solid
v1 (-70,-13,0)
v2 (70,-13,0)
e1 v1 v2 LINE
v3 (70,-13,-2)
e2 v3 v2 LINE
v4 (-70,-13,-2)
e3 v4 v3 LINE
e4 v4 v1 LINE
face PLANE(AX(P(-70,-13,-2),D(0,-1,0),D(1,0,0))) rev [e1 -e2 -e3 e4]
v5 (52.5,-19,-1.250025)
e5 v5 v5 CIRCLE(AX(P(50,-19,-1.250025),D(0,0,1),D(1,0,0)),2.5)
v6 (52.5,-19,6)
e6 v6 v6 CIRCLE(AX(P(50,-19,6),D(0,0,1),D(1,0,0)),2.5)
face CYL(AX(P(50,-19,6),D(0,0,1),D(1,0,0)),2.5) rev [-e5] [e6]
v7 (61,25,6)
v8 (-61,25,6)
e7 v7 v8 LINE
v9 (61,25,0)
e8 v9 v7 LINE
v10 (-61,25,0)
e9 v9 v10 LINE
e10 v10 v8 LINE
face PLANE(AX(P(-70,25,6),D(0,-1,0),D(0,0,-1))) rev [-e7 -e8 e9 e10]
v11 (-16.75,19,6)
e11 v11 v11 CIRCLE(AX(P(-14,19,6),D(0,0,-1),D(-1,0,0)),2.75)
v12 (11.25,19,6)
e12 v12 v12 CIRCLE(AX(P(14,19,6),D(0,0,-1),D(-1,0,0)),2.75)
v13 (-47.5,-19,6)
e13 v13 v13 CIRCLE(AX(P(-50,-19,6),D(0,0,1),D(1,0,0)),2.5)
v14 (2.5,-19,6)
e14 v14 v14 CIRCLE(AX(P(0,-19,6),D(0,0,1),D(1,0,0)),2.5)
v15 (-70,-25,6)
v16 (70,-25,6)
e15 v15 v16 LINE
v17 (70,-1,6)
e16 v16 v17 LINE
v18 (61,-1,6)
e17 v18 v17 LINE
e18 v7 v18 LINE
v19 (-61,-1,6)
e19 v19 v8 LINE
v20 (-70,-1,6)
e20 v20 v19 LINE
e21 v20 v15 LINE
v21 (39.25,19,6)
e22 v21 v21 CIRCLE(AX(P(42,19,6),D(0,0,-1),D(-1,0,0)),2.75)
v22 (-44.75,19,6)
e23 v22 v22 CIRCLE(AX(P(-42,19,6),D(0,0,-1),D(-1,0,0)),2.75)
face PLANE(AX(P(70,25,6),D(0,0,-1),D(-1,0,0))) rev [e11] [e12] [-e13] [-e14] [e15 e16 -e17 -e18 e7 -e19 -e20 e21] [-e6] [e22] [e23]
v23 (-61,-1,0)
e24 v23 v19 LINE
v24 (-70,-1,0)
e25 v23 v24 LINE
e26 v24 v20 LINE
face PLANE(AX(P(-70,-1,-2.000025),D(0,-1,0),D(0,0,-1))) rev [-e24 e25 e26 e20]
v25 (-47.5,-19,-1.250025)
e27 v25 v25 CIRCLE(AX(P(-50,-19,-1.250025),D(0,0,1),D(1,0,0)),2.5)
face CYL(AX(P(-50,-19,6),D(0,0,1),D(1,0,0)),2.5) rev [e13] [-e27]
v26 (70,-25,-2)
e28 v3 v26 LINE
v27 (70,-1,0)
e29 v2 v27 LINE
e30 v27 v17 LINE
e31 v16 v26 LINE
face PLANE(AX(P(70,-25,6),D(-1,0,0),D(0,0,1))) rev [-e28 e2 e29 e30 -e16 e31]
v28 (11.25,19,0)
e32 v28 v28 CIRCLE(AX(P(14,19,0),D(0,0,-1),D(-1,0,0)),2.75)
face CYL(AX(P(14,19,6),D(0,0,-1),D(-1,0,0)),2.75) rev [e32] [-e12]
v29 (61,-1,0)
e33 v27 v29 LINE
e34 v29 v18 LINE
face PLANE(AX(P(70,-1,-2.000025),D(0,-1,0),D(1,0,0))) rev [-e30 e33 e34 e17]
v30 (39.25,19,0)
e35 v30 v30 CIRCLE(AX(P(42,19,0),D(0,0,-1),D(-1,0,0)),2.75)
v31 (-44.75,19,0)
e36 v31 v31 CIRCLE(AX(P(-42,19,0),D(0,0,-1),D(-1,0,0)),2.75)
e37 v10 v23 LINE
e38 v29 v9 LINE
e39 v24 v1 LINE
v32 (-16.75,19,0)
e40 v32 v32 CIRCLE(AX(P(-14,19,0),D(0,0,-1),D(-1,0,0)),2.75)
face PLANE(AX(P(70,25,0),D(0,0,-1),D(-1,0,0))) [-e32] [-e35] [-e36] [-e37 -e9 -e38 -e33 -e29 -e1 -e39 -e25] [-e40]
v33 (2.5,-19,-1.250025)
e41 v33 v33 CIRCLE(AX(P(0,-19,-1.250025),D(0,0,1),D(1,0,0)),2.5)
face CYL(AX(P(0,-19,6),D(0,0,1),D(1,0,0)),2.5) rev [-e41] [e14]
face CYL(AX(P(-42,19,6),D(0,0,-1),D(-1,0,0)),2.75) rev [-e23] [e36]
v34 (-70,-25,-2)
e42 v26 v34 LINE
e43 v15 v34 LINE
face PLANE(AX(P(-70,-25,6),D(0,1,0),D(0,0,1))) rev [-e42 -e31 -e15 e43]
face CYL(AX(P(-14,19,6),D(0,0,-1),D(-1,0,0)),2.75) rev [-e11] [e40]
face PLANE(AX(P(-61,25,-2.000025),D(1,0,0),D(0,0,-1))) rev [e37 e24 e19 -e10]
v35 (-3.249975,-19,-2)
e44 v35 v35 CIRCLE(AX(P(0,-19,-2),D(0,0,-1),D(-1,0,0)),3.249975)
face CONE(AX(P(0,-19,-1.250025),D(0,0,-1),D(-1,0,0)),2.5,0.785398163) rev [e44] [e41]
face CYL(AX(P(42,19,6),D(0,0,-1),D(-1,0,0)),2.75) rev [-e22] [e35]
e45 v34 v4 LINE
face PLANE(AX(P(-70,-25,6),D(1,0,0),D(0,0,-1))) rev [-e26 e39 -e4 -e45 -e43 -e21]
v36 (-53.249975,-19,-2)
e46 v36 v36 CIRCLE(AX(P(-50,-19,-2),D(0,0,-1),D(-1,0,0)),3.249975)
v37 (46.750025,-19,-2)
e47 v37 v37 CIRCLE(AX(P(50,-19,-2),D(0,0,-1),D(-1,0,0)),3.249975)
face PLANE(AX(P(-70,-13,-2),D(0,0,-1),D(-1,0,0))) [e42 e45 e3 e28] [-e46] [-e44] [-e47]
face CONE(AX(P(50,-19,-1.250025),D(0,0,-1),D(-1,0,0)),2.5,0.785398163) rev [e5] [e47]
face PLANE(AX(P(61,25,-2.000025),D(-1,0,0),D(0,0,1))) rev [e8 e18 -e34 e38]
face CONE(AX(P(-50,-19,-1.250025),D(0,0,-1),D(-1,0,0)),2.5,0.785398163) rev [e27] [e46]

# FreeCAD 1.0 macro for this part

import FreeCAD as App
import Part
import Sketcher
from FreeCAD import Vector
Q = App.Units.Quantity

doc = App.newDocument("Part")
params = doc.addObject("Spreadsheet::Sheet", "Params")
for row, (alias, value) in enumerate([
    ("sketch1_width", "140 mm"),
    ("sketch1_height", "50 mm"),
    ("pad1_length", "6 mm"),
    ("sketch2_diameter", "5.5 mm"),
    ("sketch3_width", "140 mm"),
    ("sketch3_height", "12 mm"),
    ("pad2_length", "2 mm"),
    ("sketch4_width", "2.5 mm"),
    ("sketch4_width2", "3.25 mm"),
    ("groove_angle", "360 deg"),
    ("linearpattern_pitch", "50 mm"),
    ("linearpattern2_pitch", "50 mm"),
    ("sketch5_width", "9 mm"),
    ("sketch5_height", "26 mm"),
], start=1):
    params.set(f"A{row}", alias)
    params.set(f"B{row}", "=" + value)
    params.setAlias(f"B{row}", alias)

body = doc.addObject("PartDesign::Body", "Body")

# Sketch on XY plane
sketch1 = body.newObject("Sketcher::SketchObject", "Sketch")
sketch1.AttachmentSupport = (doc.getObject("XY_Plane"), [""])
sketch1.MapMode = "FlatFace"
sketch1.addGeometry(Part.LineSegment(Vector(-70, 25, 0), Vector(-70, -25, 0)), False)
sketch1.addGeometry(Part.LineSegment(Vector(-70, -25, 0), Vector(70, -25, 0)), False)
sketch1.addGeometry(Part.LineSegment(Vector(70, -25, 0), Vector(70, 25, 0)), False)
sketch1.addGeometry(Part.LineSegment(Vector(70, 25, 0), Vector(-70, 25, 0)), False)
sketch1.addConstraint(Sketcher.Constraint("Coincident", 0, 2, 1, 1))
sketch1.addConstraint(Sketcher.Constraint("Coincident", 1, 2, 2, 1))
sketch1.addConstraint(Sketcher.Constraint("Coincident", 2, 2, 3, 1))
sketch1.addConstraint(Sketcher.Constraint("Coincident", 3, 2, 0, 1))
sketch1.addConstraint(Sketcher.Constraint("Vertical", 0))
sketch1.addConstraint(Sketcher.Constraint("Horizontal", 1))
sketch1.addConstraint(Sketcher.Constraint("Vertical", 2))
sketch1.addConstraint(Sketcher.Constraint("Horizontal", 3))
sketch1.addConstraint(Sketcher.Constraint("Symmetric", 0, 2, 2, 2, -1, 1))
sketch1.addConstraint(Sketcher.Constraint("DistanceX", 1, 1, 1, 2, Q("140 mm")))
sketch1.addConstraint(Sketcher.Constraint("DistanceY", 0, 2, 0, 1, Q("50 mm")))
sketch1.setExpression("Constraints[9]", "Params.sketch1_width")
sketch1.setExpression("Constraints[10]", "Params.sketch1_height")
pad1 = body.newObject("PartDesign::Pad", "Pad")
pad1.Profile = sketch1
pad1.setExpression("Length", "Params.pad1_length")

# Sketch on XY plane
sketch2 = body.newObject("Sketcher::SketchObject", "Sketch001")
sketch2.AttachmentSupport = (doc.getObject("XY_Plane"), [""])
sketch2.MapMode = "FlatFace"
sketch2.addGeometry(Part.Circle(Vector(-42, 19, 0), Vector(0, 0, 1), 2.75), False)
sketch2.addGeometry(Part.Circle(Vector(-14, 19, 0), Vector(0, 0, 1), 2.75), False)
sketch2.addGeometry(Part.Circle(Vector(14, 19, 0), Vector(0, 0, 1), 2.75), False)
sketch2.addGeometry(Part.Circle(Vector(42, 19, 0), Vector(0, 0, 1), 2.75), False)
sketch2.addConstraint(Sketcher.Constraint("Equal", 0, 1))
sketch2.addConstraint(Sketcher.Constraint("Equal", 1, 2))
sketch2.addConstraint(Sketcher.Constraint("Equal", 2, 3))
sketch2.addConstraint(Sketcher.Constraint("Symmetric", 1, 3, 2, 3, -2))
sketch2.addConstraint(Sketcher.Constraint("Symmetric", 0, 3, 3, 3, -2))
sketch2.addConstraint(Sketcher.Constraint("Horizontal", 0, 3, 1, 3))
sketch2.addConstraint(Sketcher.Constraint("Diameter", 0, Q("5.5 mm")))
sketch2.addConstraint(Sketcher.Constraint("DistanceX", 0, 3, -1, 1, Q("42 mm")))
sketch2.addConstraint(Sketcher.Constraint("DistanceY", -1, 1, 0, 3, Q("19 mm")))
sketch2.addConstraint(Sketcher.Constraint("DistanceX", 1, 3, -1, 1, Q("14 mm")))
sketch2.setExpression("Constraints[6]", "Params.sketch2_diameter")
pocket1 = body.newObject("PartDesign::Pocket", "Pocket")
pocket1.Profile = sketch2
pocket1.Type = "ThroughAll"
pocket1.Reversed = True

# Sketch on XY plane
sketch3 = body.newObject("Sketcher::SketchObject", "Sketch002")
sketch3.AttachmentSupport = (doc.getObject("XY_Plane"), [""])
sketch3.MapMode = "FlatFace"
sketch3.addGeometry(Part.LineSegment(Vector(70, -13, 0), Vector(70, -25, 0)), False)
sketch3.addGeometry(Part.LineSegment(Vector(70, -25, 0), Vector(-70, -25, 0)), False)
sketch3.addGeometry(Part.LineSegment(Vector(-70, -25, 0), Vector(-70, -13, 0)), False)
sketch3.addGeometry(Part.LineSegment(Vector(-70, -13, 0), Vector(70, -13, 0)), False)
sketch3.addConstraint(Sketcher.Constraint("Coincident", 0, 2, 1, 1))
sketch3.addConstraint(Sketcher.Constraint("Coincident", 1, 2, 2, 1))
sketch3.addConstraint(Sketcher.Constraint("Coincident", 2, 2, 3, 1))
sketch3.addConstraint(Sketcher.Constraint("Coincident", 3, 2, 0, 1))
sketch3.addConstraint(Sketcher.Constraint("Vertical", 0))
sketch3.addConstraint(Sketcher.Constraint("Horizontal", 1))
sketch3.addConstraint(Sketcher.Constraint("Vertical", 2))
sketch3.addConstraint(Sketcher.Constraint("Horizontal", 3))
sketch3.addConstraint(Sketcher.Constraint("DistanceX", 1, 2, 1, 1, Q("140 mm")))
sketch3.addConstraint(Sketcher.Constraint("DistanceY", 0, 2, 0, 1, Q("12 mm")))
sketch3.addConstraint(Sketcher.Constraint("DistanceX", -1, 1, 0, 2, Q("70 mm")))
sketch3.addConstraint(Sketcher.Constraint("DistanceY", 0, 2, -1, 1, Q("25 mm")))
sketch3.setExpression("Constraints[8]", "Params.sketch3_width")
sketch3.setExpression("Constraints[9]", "Params.sketch3_height")
pad2 = body.newObject("PartDesign::Pad", "Pad001")
pad2.Profile = sketch3
pad2.setExpression("Length", "Params.pad2_length")
pad2.Reversed = True

# Sketch on YZ plane
sketch4 = body.newObject("Sketcher::SketchObject", "Sketch003")
sketch4.AttachmentSupport = (doc.getObject("YZ_Plane"), [""])
sketch4.MapMode = "FlatFace"
sketch4.addGeometry(Part.LineSegment(Vector(-19, -2.000025, 0), Vector(-19, 6, 0)), False)
sketch4.addGeometry(Part.LineSegment(Vector(-19, 6, 0), Vector(-21.5, 6, 0)), False)
sketch4.addGeometry(Part.LineSegment(Vector(-21.5, 6, 0), Vector(-21.5, -1.250025, 0)), False)
sketch4.addGeometry(Part.LineSegment(Vector(-21.5, -1.250025, 0), Vector(-22.25, -2.000025, 0)), False)
sketch4.addGeometry(Part.LineSegment(Vector(-22.25, -2.000025, 0), Vector(-19, -2.000025, 0)), False)
sketch4.addGeometry(Part.LineSegment(Vector(-19, 6, 0), Vector(-19, -2.000025, 0)), True)  # axis
sketch4.addConstraint(Sketcher.Constraint("Coincident", 0, 2, 1, 1))
sketch4.addConstraint(Sketcher.Constraint("Coincident", 1, 2, 2, 1))
sketch4.addConstraint(Sketcher.Constraint("Coincident", 2, 2, 3, 1))
sketch4.addConstraint(Sketcher.Constraint("Coincident", 3, 2, 4, 1))
sketch4.addConstraint(Sketcher.Constraint("Coincident", 4, 2, 0, 1))
sketch4.addConstraint(Sketcher.Constraint("Vertical", 0))
sketch4.addConstraint(Sketcher.Constraint("Horizontal", 1))
sketch4.addConstraint(Sketcher.Constraint("Vertical", 2))
sketch4.addConstraint(Sketcher.Constraint("Horizontal", 4))
sketch4.addConstraint(Sketcher.Constraint("Vertical", 5))
sketch4.addConstraint(Sketcher.Constraint("Coincident", 5, 1, 0, 2))
sketch4.addConstraint(Sketcher.Constraint("Horizontal", 3, 2, 5, 2))
sketch4.addConstraint(Sketcher.Constraint("Angle", 3, Q("-135 deg")))
sketch4.addConstraint(Sketcher.Constraint("DistanceX", 1, 2, 1, 1, Q("2.5 mm")))
sketch4.addConstraint(Sketcher.Constraint("DistanceX", 0, 2, -1, 1, Q("19 mm")))
sketch4.addConstraint(Sketcher.Constraint("DistanceY", -1, 1, 0, 2, Q("6 mm")))
sketch4.addConstraint(Sketcher.Constraint("DistanceX", 4, 1, 4, 2, Q("3.25 mm")))
sketch4.addConstraint(Sketcher.Constraint("DistanceY", 0, 1, 0, 2, Q("8.000025 mm")))
sketch4.setExpression("Constraints[13]", "Params.sketch4_width")
sketch4.setExpression("Constraints[16]", "Params.sketch4_width2")
groove = body.newObject("PartDesign::Groove", "Groove")
groove.Profile = sketch4
groove.ReferenceAxis = (sketch4, ["Axis0"])
groove.setExpression("Angle", "Params.groove_angle")
doc.recompute()

linearpattern = body.newObject("PartDesign::LinearPattern", "LinearPattern")
linearpattern.Originals = [groove]
linearpattern.Direction = (doc.getObject("X_Axis"), [""])
linearpattern.Mode = "offset"
linearpattern.setExpression("Offset", "Params.linearpattern_pitch")
linearpattern.Occurrences = 2
linearpattern.Reversed = True
body.Tip = linearpattern
doc.recompute()

linearpattern2 = body.newObject("PartDesign::LinearPattern", "LinearPattern001")
linearpattern2.Originals = [groove]
linearpattern2.Direction = (doc.getObject("X_Axis"), [""])
linearpattern2.Mode = "offset"
linearpattern2.setExpression("Offset", "Params.linearpattern2_pitch")
linearpattern2.Occurrences = 2
body.Tip = linearpattern2

# Sketch on XY plane
sketch5 = body.newObject("Sketcher::SketchObject", "Sketch004")
sketch5.AttachmentSupport = (doc.getObject("XY_Plane"), [""])
sketch5.MapMode = "FlatFace"
sketch5.AttachmentOffset = App.Placement(Vector(0, 0, 6), App.Rotation())
sketch5.addGeometry(Part.LineSegment(Vector(-70, 25, 0), Vector(-70, -1, 0)), False)
sketch5.addGeometry(Part.LineSegment(Vector(-70, -1, 0), Vector(-61, -1, 0)), False)
sketch5.addGeometry(Part.LineSegment(Vector(-61, -1, 0), Vector(-61, 25, 0)), False)
sketch5.addGeometry(Part.LineSegment(Vector(-61, 25, 0), Vector(-70, 25, 0)), False)
sketch5.addGeometry(Part.LineSegment(Vector(61, 25, 0), Vector(61, -1, 0)), False)
sketch5.addGeometry(Part.LineSegment(Vector(61, -1, 0), Vector(70, -1, 0)), False)
sketch5.addGeometry(Part.LineSegment(Vector(70, -1, 0), Vector(70, 25, 0)), False)
sketch5.addGeometry(Part.LineSegment(Vector(70, 25, 0), Vector(61, 25, 0)), False)
sketch5.addConstraint(Sketcher.Constraint("Coincident", 0, 2, 1, 1))
sketch5.addConstraint(Sketcher.Constraint("Coincident", 1, 2, 2, 1))
sketch5.addConstraint(Sketcher.Constraint("Coincident", 2, 2, 3, 1))
sketch5.addConstraint(Sketcher.Constraint("Coincident", 3, 2, 0, 1))
sketch5.addConstraint(Sketcher.Constraint("Coincident", 4, 2, 5, 1))
sketch5.addConstraint(Sketcher.Constraint("Coincident", 5, 2, 6, 1))
sketch5.addConstraint(Sketcher.Constraint("Coincident", 6, 2, 7, 1))
sketch5.addConstraint(Sketcher.Constraint("Coincident", 7, 2, 4, 1))
sketch5.addConstraint(Sketcher.Constraint("Vertical", 0))
sketch5.addConstraint(Sketcher.Constraint("Horizontal", 1))
sketch5.addConstraint(Sketcher.Constraint("Vertical", 2))
sketch5.addConstraint(Sketcher.Constraint("Horizontal", 3))
sketch5.addConstraint(Sketcher.Constraint("Vertical", 4))
sketch5.addConstraint(Sketcher.Constraint("Horizontal", 5))
sketch5.addConstraint(Sketcher.Constraint("Vertical", 6))
sketch5.addConstraint(Sketcher.Constraint("Horizontal", 7))
sketch5.addConstraint(Sketcher.Constraint("Symmetric", 1, 2, 4, 2, -2))
sketch5.addConstraint(Sketcher.Constraint("Symmetric", 3, 2, 6, 2, -2))
sketch5.addConstraint(Sketcher.Constraint("DistanceX", 1, 1, 1, 2, Q("9 mm")))
sketch5.addConstraint(Sketcher.Constraint("DistanceY", 0, 2, 0, 1, Q("26 mm")))
sketch5.addConstraint(Sketcher.Constraint("DistanceX", 0, 2, -1, 1, Q("70 mm")))
sketch5.addConstraint(Sketcher.Constraint("DistanceY", 0, 2, -1, 1, Q("1 mm")))
sketch5.setExpression("Constraints[18]", "Params.sketch5_width")
sketch5.setExpression("Constraints[19]", "Params.sketch5_height")
pocket2 = body.newObject("PartDesign::Pocket", "Pocket001")
pocket2.Profile = sketch5
pocket2.Type = "ThroughAll"

doc.recompute()
